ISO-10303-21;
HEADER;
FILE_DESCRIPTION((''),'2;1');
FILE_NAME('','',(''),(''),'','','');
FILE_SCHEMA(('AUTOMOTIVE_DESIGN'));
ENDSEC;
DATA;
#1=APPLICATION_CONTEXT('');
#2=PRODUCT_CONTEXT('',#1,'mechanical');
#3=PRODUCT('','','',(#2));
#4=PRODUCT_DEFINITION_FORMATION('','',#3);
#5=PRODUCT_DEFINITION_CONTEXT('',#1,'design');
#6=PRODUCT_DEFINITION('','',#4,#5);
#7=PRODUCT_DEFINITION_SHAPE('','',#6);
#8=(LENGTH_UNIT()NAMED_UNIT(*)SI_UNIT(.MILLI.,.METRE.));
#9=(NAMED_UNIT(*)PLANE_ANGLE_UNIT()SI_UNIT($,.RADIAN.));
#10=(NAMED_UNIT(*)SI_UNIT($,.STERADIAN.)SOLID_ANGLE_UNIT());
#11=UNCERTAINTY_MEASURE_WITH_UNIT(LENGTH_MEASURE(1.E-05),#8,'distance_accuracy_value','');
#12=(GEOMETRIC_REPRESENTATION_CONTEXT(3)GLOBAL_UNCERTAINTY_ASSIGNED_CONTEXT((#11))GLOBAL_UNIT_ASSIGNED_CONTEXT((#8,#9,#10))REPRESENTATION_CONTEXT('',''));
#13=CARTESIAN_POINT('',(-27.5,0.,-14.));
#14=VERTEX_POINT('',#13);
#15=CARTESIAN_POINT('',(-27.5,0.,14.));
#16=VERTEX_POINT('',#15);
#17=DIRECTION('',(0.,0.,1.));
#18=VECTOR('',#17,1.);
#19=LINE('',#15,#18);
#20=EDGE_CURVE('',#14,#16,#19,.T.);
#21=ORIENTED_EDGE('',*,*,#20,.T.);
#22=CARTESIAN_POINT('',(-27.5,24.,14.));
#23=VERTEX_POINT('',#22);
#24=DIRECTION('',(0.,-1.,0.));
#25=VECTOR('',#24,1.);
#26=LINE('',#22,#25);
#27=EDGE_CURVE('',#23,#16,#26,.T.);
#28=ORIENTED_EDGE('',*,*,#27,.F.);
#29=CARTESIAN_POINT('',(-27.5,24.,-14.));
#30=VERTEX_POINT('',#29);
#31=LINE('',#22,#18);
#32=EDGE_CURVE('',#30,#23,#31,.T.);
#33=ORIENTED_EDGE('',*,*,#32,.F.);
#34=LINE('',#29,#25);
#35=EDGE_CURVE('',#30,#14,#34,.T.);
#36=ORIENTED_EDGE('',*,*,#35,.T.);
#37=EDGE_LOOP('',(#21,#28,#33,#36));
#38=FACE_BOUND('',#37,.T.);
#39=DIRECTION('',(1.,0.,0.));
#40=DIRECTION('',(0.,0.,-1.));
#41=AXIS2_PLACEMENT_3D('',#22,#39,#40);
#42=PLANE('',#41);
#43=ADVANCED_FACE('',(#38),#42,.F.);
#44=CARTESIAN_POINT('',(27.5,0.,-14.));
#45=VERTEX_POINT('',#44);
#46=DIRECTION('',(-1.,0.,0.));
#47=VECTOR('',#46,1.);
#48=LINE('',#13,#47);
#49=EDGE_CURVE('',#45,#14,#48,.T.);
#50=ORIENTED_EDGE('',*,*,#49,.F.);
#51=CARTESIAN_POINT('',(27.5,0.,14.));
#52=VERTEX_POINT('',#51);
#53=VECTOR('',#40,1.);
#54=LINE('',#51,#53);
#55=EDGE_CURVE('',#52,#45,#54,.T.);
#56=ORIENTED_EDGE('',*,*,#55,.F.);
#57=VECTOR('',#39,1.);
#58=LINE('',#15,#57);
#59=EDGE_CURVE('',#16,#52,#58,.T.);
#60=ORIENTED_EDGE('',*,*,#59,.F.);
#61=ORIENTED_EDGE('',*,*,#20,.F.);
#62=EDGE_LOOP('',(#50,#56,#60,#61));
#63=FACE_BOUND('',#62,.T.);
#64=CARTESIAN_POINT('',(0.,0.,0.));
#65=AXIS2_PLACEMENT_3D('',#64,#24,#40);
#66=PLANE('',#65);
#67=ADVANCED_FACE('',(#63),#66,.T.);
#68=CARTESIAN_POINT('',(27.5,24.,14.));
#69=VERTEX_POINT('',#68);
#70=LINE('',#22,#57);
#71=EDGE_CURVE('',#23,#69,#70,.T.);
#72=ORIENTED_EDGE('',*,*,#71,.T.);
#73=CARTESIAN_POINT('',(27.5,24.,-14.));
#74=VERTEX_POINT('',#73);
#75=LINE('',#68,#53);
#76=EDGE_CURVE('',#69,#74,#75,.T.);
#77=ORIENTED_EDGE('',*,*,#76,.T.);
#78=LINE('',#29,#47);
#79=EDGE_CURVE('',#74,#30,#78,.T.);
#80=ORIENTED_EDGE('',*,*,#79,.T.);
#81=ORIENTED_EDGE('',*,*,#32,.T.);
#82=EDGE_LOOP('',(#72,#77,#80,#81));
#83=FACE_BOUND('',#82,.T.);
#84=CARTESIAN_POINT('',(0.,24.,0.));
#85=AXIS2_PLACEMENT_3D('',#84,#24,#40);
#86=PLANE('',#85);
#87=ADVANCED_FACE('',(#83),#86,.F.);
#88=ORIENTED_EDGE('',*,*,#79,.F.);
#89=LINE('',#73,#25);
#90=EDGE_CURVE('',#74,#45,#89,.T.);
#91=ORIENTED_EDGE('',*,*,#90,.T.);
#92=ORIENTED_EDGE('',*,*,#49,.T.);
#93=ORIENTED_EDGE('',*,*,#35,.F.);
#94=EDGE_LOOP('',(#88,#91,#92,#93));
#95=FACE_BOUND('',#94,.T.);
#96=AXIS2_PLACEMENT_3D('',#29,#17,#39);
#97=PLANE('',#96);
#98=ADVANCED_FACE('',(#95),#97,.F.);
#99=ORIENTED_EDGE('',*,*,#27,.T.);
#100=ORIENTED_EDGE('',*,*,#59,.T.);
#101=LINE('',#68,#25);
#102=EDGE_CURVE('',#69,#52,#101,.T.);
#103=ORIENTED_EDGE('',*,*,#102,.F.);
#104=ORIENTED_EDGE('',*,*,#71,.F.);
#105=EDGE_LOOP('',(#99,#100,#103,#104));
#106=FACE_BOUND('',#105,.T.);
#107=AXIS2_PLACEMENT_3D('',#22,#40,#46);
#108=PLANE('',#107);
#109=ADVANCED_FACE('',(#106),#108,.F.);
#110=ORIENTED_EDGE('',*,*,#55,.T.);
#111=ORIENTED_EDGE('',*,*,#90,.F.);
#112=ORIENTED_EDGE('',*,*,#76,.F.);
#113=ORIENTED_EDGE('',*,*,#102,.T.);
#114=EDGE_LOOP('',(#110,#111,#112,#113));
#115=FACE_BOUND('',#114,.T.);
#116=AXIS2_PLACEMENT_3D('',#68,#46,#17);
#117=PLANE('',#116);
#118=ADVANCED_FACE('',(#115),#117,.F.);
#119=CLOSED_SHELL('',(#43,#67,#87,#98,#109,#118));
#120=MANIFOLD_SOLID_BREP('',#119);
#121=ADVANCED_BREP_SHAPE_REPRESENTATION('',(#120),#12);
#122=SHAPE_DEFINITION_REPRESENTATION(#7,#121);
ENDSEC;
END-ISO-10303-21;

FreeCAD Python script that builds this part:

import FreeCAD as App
import Part
import Sketcher

V = App.Vector
Q = App.Units.Quantity

doc = App.newDocument("Part")
body = doc.addObject("PartDesign::Body", "Body")

# Sketch on XZ plane
sketch1 = doc.addObject("Sketcher::SketchObject", "Sketch")
body.addObject(sketch1)
sketch1.AttachmentSupport = (doc.XZ_Plane, [""])
sketch1.MapMode = "FlatFace"
sketch1.addGeometry(Part.LineSegment(V(-27.5, -14, 0), V(-27.5, 14, 0)), False)
sketch1.addGeometry(Part.LineSegment(V(-27.5, 14, 0), V(27.5, 14, 0)), False)
sketch1.addGeometry(Part.LineSegment(V(27.5, 14, 0), V(27.5, -14, 0)), False)
sketch1.addGeometry(Part.LineSegment(V(27.5, -14, 0), V(-27.5, -14, 0)), False)
sketch1.addConstraint(Sketcher.Constraint("Coincident", 0, 2, 1, 1))
sketch1.addConstraint(Sketcher.Constraint("Coincident", 1, 2, 2, 1))
sketch1.addConstraint(Sketcher.Constraint("Coincident", 2, 2, 3, 1))
sketch1.addConstraint(Sketcher.Constraint("Coincident", 3, 2, 0, 1))
sketch1.addConstraint(Sketcher.Constraint("Vertical", 0))
sketch1.addConstraint(Sketcher.Constraint("Horizontal", 1))
sketch1.addConstraint(Sketcher.Constraint("Vertical", 2))
sketch1.addConstraint(Sketcher.Constraint("Horizontal", 3))
sketch1.addConstraint(Sketcher.Constraint("Symmetric", 0, 2, 2, 2, -1, 1))
sketch1.addConstraint(Sketcher.Constraint("DistanceX", 1, 1, 1, 2, Q("55 mm")))
sketch1.addConstraint(Sketcher.Constraint("DistanceY", 0, 1, 0, 2, Q("28 mm")))
pad1 = doc.addObject("PartDesign::Pad", "Pad")
body.addObject(pad1)
pad1.Profile = sketch1
pad1.Length = 24
pad1.Reversed = True

doc.recompute()
